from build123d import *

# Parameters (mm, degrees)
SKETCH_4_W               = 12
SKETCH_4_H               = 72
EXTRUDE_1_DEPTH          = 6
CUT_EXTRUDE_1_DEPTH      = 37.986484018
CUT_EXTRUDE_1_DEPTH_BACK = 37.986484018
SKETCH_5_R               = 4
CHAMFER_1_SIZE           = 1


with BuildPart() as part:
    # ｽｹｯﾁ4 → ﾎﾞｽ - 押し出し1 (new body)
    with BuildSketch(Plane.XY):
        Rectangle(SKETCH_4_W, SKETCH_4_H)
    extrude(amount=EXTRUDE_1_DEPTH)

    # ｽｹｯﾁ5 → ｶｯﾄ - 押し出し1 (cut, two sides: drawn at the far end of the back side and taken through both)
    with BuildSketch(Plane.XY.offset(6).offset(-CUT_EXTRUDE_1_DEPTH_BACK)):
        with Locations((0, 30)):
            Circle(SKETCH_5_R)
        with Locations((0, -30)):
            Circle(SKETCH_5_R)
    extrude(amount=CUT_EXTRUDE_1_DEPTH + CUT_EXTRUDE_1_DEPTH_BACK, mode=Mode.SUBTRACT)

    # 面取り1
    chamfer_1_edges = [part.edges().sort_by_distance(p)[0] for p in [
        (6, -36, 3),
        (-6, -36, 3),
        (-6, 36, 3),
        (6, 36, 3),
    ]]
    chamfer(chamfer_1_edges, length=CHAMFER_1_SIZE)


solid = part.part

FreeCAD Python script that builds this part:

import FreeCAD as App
import Part
import Sketcher

V = App.Vector


def edges_at(feature, points):
    """Names of the edges that pass closest to the given points."""
    edges = feature.Shape.Edges
    near = lambda p: min(range(len(edges)), key=lambda i: edges[i].distToShape(Part.Vertex(*p))[0])
    return sorted({f"Edge{near(p) + 1}" for p in points})

doc = App.newDocument("Part")
body = doc.addObject("PartDesign::Body", "Body")

# Sketch on XY plane
sketch1 = doc.addObject("Sketcher::SketchObject", "Sketch")
body.addObject(sketch1)
sketch1.AttachmentSupport = (doc.XY_Plane, [""])
sketch1.MapMode = "FlatFace"
sketch1.addGeometry(Part.LineSegment(V(-6, 36, 0), V(-6, -36, 0)), False)
sketch1.addGeometry(Part.LineSegment(V(-6, -36, 0), V(6, -36, 0)), False)
sketch1.addGeometry(Part.LineSegment(V(6, -36, 0), V(6, 36, 0)), False)
sketch1.addGeometry(Part.LineSegment(V(6, 36, 0), V(-6, 36, 0)), False)
sketch1.addConstraint(Sketcher.Constraint("Coincident", 0, 2, 1, 1))
sketch1.addConstraint(Sketcher.Constraint("Coincident", 1, 2, 2, 1))
sketch1.addConstraint(Sketcher.Constraint("Coincident", 2, 2, 3, 1))
sketch1.addConstraint(Sketcher.Constraint("Coincident", 3, 2, 0, 1))
sketch1.addConstraint(Sketcher.Constraint("Vertical", 0))
sketch1.addConstraint(Sketcher.Constraint("Horizontal", 1))
sketch1.addConstraint(Sketcher.Constraint("Vertical", 2))
sketch1.addConstraint(Sketcher.Constraint("Horizontal", 3))
sketch1.addConstraint(Sketcher.Constraint("Symmetric", 0, 2, 2, 2, -1, 1))
sketch1.addConstraint(Sketcher.Constraint("DistanceX", 1, 1, 1, 2, 12.0))
sketch1.addConstraint(Sketcher.Constraint("DistanceY", 0, 2, 0, 1, 72.0))
pad1 = doc.addObject("PartDesign::Pad", "Pad")
body.addObject(pad1)
pad1.Profile = sketch1
pad1.Length = 6

# Sketch on XY plane
sketch2 = doc.addObject("Sketcher::SketchObject", "Sketch001")
body.addObject(sketch2)
sketch2.AttachmentSupport = (doc.XY_Plane, [""])
sketch2.MapMode = "FlatFace"
sketch2.AttachmentOffset = App.Placement(V(0, 0, 6), App.Rotation())
sketch2.addGeometry(Part.Circle(V(0, 30, 0), V(0, 0, 1), 4), False)
sketch2.addGeometry(Part.Circle(V(0, -30, 0), V(0, 0, 1), 4), False)
sketch2.addConstraint(Sketcher.Constraint("Equal", 0, 1))
sketch2.addConstraint(Sketcher.Constraint("Symmetric", 0, 3, 1, 3, -1, 1))
sketch2.addConstraint(Sketcher.Constraint("PointOnObject", 0, 3, -2))
sketch2.addConstraint(Sketcher.Constraint("Diameter", 0, 8.0))
sketch2.addConstraint(Sketcher.Constraint("DistanceY", -1, 1, 0, 3, 30.0))
pocket1 = doc.addObject("PartDesign::Pocket", "Pocket")
body.addObject(pocket1)
pocket1.Profile = sketch2
pocket1.Type = "ThroughAll"
pocket1.Midplane = True
doc.recompute()

chamfer = doc.addObject("PartDesign::Chamfer", "Chamfer")
body.addObject(chamfer)
chamfer.Base = (pocket1, edges_at(pocket1, [
    (6, -36, 3),
    (-6, -36, 3),
    (-6, 36, 3),
    (6, 36, 3),
]))
chamfer.Size = 1

doc.recompute()
